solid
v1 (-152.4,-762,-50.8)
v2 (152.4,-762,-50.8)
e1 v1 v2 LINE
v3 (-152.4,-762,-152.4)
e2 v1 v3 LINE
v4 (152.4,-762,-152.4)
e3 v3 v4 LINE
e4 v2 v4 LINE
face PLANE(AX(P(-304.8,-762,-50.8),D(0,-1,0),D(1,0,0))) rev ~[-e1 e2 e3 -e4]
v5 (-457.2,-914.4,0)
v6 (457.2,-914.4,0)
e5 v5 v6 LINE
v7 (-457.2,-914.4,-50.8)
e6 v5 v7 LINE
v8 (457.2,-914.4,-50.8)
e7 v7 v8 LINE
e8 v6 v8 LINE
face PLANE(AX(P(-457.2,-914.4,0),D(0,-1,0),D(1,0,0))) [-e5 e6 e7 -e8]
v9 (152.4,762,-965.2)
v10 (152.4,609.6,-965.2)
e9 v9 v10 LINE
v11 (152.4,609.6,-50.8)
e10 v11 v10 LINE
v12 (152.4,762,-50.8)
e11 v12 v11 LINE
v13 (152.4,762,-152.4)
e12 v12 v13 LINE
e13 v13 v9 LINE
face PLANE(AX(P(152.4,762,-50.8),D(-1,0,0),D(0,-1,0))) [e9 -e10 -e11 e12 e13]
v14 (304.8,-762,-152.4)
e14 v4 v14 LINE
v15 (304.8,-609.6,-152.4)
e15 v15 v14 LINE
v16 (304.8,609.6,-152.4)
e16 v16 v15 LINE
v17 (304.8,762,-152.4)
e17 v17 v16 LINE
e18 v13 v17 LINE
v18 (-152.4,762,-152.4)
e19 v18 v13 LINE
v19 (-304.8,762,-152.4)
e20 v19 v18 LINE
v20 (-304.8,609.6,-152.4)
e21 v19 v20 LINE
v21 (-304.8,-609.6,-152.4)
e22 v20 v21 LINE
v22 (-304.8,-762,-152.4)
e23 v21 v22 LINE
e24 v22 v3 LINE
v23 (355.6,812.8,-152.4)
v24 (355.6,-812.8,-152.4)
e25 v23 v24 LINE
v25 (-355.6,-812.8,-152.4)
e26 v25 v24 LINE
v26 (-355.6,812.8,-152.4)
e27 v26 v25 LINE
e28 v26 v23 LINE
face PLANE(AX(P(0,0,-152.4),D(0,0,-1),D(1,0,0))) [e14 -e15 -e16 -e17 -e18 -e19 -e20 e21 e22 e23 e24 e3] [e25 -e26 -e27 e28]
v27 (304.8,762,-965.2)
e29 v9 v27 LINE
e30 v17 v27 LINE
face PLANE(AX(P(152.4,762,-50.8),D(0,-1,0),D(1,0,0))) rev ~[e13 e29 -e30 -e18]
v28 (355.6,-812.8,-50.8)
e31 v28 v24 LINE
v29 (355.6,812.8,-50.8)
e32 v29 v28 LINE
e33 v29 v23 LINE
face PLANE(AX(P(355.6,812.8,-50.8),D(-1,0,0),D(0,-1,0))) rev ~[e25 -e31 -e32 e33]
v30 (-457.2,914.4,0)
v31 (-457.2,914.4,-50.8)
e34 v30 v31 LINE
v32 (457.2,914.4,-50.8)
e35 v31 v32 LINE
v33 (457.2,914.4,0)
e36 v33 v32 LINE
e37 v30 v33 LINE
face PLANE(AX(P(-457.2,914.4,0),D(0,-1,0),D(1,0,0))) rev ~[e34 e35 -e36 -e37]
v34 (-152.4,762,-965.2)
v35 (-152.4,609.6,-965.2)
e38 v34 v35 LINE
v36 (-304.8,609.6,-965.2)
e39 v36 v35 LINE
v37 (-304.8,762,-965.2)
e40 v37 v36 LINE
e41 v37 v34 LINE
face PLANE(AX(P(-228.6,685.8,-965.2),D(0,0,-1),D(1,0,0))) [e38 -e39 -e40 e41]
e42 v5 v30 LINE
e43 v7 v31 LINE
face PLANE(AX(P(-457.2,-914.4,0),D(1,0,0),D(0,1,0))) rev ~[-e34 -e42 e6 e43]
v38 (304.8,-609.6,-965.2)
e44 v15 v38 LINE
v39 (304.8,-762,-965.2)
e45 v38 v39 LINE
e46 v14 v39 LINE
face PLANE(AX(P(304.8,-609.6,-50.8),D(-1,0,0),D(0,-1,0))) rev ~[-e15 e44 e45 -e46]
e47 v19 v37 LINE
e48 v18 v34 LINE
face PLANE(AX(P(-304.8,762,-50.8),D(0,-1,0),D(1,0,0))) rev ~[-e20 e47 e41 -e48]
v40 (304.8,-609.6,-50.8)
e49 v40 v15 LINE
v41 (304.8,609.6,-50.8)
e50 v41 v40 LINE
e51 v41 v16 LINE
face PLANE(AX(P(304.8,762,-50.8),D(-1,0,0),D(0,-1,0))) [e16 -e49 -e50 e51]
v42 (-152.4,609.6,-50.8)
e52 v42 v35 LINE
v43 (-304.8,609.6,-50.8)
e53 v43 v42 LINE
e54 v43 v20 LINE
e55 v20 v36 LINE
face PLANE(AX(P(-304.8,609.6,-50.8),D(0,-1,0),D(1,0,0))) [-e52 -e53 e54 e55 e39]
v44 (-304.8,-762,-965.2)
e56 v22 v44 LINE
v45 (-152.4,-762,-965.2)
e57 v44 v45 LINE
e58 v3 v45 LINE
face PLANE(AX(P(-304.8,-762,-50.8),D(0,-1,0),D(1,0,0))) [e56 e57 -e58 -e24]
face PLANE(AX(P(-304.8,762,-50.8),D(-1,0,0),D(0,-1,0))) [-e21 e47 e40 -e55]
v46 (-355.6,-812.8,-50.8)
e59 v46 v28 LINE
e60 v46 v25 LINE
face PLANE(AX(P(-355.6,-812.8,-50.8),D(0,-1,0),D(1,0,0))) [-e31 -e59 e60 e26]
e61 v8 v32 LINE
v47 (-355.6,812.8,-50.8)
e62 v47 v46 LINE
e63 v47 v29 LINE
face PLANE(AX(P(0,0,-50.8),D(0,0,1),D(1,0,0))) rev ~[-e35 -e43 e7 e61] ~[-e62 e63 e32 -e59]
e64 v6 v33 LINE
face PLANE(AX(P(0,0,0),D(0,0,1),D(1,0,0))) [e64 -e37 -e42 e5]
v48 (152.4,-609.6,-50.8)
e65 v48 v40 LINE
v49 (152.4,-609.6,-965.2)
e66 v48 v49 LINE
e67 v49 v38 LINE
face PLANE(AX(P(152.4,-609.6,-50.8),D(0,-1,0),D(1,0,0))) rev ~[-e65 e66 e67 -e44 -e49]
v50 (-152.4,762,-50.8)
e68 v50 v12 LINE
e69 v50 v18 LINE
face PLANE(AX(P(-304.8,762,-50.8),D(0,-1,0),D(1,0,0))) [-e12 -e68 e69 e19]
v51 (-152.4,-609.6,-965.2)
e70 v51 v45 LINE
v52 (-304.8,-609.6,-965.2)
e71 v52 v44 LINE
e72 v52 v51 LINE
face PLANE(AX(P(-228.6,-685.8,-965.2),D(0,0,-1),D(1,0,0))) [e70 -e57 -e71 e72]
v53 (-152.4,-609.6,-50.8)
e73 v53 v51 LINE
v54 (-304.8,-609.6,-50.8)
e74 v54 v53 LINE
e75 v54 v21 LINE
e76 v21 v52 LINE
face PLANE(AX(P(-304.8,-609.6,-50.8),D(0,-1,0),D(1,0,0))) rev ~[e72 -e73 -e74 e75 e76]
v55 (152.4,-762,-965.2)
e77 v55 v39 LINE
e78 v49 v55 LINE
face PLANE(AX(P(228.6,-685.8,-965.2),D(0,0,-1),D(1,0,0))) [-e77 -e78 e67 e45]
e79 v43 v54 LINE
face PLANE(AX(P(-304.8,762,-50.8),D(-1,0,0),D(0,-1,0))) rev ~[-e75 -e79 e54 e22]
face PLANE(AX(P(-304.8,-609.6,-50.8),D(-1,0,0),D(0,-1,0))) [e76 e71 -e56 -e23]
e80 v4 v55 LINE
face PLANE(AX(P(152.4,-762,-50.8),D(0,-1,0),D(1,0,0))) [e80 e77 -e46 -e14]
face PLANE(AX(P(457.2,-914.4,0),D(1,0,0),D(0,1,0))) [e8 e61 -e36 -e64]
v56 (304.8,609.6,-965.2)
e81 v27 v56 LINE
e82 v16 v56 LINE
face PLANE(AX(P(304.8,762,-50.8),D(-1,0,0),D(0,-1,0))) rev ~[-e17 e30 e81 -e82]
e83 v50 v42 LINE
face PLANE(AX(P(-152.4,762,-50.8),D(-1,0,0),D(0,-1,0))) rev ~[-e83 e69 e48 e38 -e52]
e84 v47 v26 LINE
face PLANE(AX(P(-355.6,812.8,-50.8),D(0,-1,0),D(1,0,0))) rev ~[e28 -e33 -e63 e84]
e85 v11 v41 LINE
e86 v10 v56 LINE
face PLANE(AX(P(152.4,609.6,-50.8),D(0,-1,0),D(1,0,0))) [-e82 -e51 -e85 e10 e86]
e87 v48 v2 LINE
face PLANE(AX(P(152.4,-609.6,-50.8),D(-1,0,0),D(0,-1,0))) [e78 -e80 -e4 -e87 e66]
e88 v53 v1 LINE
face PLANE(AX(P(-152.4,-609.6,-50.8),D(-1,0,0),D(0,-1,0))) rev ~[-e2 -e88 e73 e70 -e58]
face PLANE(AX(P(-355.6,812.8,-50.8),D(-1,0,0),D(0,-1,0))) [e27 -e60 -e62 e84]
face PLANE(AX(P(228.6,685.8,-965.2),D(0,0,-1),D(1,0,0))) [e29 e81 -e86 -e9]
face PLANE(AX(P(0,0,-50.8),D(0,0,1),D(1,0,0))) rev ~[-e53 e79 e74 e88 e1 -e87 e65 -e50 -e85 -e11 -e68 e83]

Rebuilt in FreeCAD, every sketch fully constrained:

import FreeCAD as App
import Part
import Sketcher
from FreeCAD import Vector
Q = App.Units.Quantity


def add_polygon(sketch, points):
    """Adds a closed chain of lines whose ends are joined by coincident constraints."""
    first, n = sketch.GeometryCount, len(points)
    for a, b in zip(points, points[1:] + points[:1]):
        sketch.addGeometry(Part.LineSegment(App.Vector(*a, 0), App.Vector(*b, 0)), False)
    for i in range(n):
        sketch.addConstraint(Sketcher.Constraint("Coincident", first + i, 2, first + (i + 1) % n, 1))

doc = App.newDocument("Part")
params = doc.addObject("Spreadsheet::Sheet", "Params")
for row, (alias, value) in enumerate([
    ("sketch1_width", "36 in"),
    ("sketch1_height", "72 in"),
    ("pad1_length", "2 in"),
    ("sketch2_width", "28 in"),
    ("sketch2_width2", "24 in"),
    ("sketch2_height", "64 in"),
    ("sketch2_height2", "60 in"),
    ("pad2_length", "4 in"),
    ("sketch3_width", "6 in"),
    ("pad3_length", "36 in"),
], start=1):
    params.set(f"A{row}", alias)
    params.set(f"B{row}", "=" + value)
    params.setAlias(f"B{row}", alias)

body = doc.addObject("PartDesign::Body", "Body")

# Sketch on XY plane
sketch1 = body.newObject("Sketcher::SketchObject", "Sketch")
sketch1.AttachmentSupport = (doc.getObject("XY_Plane"), [""])
sketch1.MapMode = "FlatFace"
add_polygon(sketch1, [(-457.2, 914.4), (-457.2, -914.4), (457.2, -914.4), (457.2, 914.4)])  # lines 0-3
sketch1.addConstraint([
    Sketcher.Constraint("Vertical", 0),
    Sketcher.Constraint("Horizontal", 1),
    Sketcher.Constraint("Vertical", 2),
    Sketcher.Constraint("Horizontal", 3),
    Sketcher.Constraint("Symmetric", 0, 2, 2, 2, -1, 1),
    Sketcher.Constraint("DistanceX", 1, 1, 1, 2, Q("36 in")),
    Sketcher.Constraint("DistanceY", 0, 2, 0, 1, Q("72 in")),
])
sketch1.setExpression("Constraints[9]", "Params.sketch1_width")
sketch1.setExpression("Constraints[10]", "Params.sketch1_height")
pad1 = body.newObject("PartDesign::Pad", "Pad")
pad1.Profile = sketch1
pad1.setExpression("Length", "Params.pad1_length")
pad1.Reversed = True

# Sketch on XY plane
sketch2 = body.newObject("Sketcher::SketchObject", "Sketch001")
sketch2.AttachmentSupport = (doc.getObject("XY_Plane"), [""])
sketch2.MapMode = "FlatFace"
sketch2.AttachmentOffset = App.Placement(Vector(0, 0, -2 * 25.4), App.Rotation())
add_polygon(sketch2, [(-355.6, -812.8), (-355.6, 812.8), (355.6, 812.8), (355.6, -812.8)])  # lines 0-3
add_polygon(sketch2, [(304.8, 762), (-304.8, 762), (-304.8, -762), (304.8, -762)])  # lines 4-7
sketch2.addConstraint([
    Sketcher.Constraint("Vertical", 0),
    Sketcher.Constraint("Horizontal", 1),
    Sketcher.Constraint("Vertical", 2),
    Sketcher.Constraint("Horizontal", 3),
    Sketcher.Constraint("Horizontal", 4),
    Sketcher.Constraint("Vertical", 5),
    Sketcher.Constraint("Horizontal", 6),
    Sketcher.Constraint("Vertical", 7),
    Sketcher.Constraint("Symmetric", 0, 2, 2, 2, -1, 1),
    Sketcher.Constraint("Symmetric", 4, 2, 6, 2, -1, 1),
    Sketcher.Constraint("DistanceX", 1, 1, 1, 2, Q("28 in")),
    Sketcher.Constraint("DistanceX", 4, 2, 4, 1, Q("24 in")),
    Sketcher.Constraint("DistanceY", 0, 1, 0, 2, Q("64 in")),
    Sketcher.Constraint("DistanceY", 5, 2, 5, 1, Q("60 in")),
])
sketch2.setExpression("Constraints[18]", "Params.sketch2_width")
sketch2.setExpression("Constraints[19]", "Params.sketch2_width2")
sketch2.setExpression("Constraints[20]", "Params.sketch2_height")
sketch2.setExpression("Constraints[21]", "Params.sketch2_height2")
pad2 = body.newObject("PartDesign::Pad", "Pad001")
pad2.Profile = sketch2
pad2.setExpression("Length", "Params.pad2_length")
pad2.Reversed = True

# Sketch on XY plane
sketch3 = body.newObject("Sketcher::SketchObject", "Sketch002")
sketch3.AttachmentSupport = (doc.getObject("XY_Plane"), [""])
sketch3.MapMode = "FlatFace"
sketch3.AttachmentOffset = App.Placement(Vector(0, 0, -2 * 25.4), App.Rotation())
add_polygon(sketch3, [(-304.8, 609.6), (-304.8, 762), (-152.4, 762), (-152.4, 609.6)])  # lines 0-3
add_polygon(sketch3, [(-304.8, -762), (-304.8, -609.6), (-152.4, -609.6), (-152.4, -762)])  # lines 4-7
add_polygon(sketch3, [(152.4, 609.6), (152.4, 762), (304.8, 762), (304.8, 609.6)])  # lines 8-11
add_polygon(sketch3, [(152.4, -762), (152.4, -609.6), (304.8, -609.6), (304.8, -762)])  # lines 12-15
sketch3.addConstraint([
    Sketcher.Constraint("Vertical", 0),
    Sketcher.Constraint("Horizontal", 1),
    Sketcher.Constraint("Vertical", 2),
    Sketcher.Constraint("Horizontal", 3),
    Sketcher.Constraint("Vertical", 4),
    Sketcher.Constraint("Horizontal", 5),
    Sketcher.Constraint("Vertical", 6),
    Sketcher.Constraint("Horizontal", 7),
    Sketcher.Constraint("Vertical", 8),
    Sketcher.Constraint("Horizontal", 9),
    Sketcher.Constraint("Vertical", 10),
    Sketcher.Constraint("Horizontal", 11),
    Sketcher.Constraint("Vertical", 12),
    Sketcher.Constraint("Horizontal", 13),
    Sketcher.Constraint("Vertical", 14),
    Sketcher.Constraint("Horizontal", 15),
    Sketcher.Constraint("Symmetric", 6, 2, 8, 2, -1, 1),
    Sketcher.Constraint("Symmetric", 4, 2, 10, 2, -1, 1),
    Sketcher.Constraint("Symmetric", 2, 2, 12, 2, -1, 1),
    Sketcher.Constraint("Symmetric", 0, 2, 14, 2, -1, 1),
    Sketcher.Constraint("Symmetric", 1, 2, 8, 2, -2),
    Sketcher.Constraint("Symmetric", 3, 2, 10, 2, -2),
    Sketcher.Constraint("Equal", 15, 0),
    Sketcher.Constraint("DistanceX", 1, 1, 1, 2, Q("6 in")),
    Sketcher.Constraint("DistanceX", 0, 2, -1, 1, Q("12 in")),
    Sketcher.Constraint("DistanceY", -1, 1, 0, 2, Q("30 in")),
])
sketch3.setExpression("Constraints[39]", "Params.sketch3_width")
pad3 = body.newObject("PartDesign::Pad", "Pad002")
pad3.Profile = sketch3
pad3.setExpression("Length", "Params.pad3_length")
pad3.Reversed = True

doc.recompute()
